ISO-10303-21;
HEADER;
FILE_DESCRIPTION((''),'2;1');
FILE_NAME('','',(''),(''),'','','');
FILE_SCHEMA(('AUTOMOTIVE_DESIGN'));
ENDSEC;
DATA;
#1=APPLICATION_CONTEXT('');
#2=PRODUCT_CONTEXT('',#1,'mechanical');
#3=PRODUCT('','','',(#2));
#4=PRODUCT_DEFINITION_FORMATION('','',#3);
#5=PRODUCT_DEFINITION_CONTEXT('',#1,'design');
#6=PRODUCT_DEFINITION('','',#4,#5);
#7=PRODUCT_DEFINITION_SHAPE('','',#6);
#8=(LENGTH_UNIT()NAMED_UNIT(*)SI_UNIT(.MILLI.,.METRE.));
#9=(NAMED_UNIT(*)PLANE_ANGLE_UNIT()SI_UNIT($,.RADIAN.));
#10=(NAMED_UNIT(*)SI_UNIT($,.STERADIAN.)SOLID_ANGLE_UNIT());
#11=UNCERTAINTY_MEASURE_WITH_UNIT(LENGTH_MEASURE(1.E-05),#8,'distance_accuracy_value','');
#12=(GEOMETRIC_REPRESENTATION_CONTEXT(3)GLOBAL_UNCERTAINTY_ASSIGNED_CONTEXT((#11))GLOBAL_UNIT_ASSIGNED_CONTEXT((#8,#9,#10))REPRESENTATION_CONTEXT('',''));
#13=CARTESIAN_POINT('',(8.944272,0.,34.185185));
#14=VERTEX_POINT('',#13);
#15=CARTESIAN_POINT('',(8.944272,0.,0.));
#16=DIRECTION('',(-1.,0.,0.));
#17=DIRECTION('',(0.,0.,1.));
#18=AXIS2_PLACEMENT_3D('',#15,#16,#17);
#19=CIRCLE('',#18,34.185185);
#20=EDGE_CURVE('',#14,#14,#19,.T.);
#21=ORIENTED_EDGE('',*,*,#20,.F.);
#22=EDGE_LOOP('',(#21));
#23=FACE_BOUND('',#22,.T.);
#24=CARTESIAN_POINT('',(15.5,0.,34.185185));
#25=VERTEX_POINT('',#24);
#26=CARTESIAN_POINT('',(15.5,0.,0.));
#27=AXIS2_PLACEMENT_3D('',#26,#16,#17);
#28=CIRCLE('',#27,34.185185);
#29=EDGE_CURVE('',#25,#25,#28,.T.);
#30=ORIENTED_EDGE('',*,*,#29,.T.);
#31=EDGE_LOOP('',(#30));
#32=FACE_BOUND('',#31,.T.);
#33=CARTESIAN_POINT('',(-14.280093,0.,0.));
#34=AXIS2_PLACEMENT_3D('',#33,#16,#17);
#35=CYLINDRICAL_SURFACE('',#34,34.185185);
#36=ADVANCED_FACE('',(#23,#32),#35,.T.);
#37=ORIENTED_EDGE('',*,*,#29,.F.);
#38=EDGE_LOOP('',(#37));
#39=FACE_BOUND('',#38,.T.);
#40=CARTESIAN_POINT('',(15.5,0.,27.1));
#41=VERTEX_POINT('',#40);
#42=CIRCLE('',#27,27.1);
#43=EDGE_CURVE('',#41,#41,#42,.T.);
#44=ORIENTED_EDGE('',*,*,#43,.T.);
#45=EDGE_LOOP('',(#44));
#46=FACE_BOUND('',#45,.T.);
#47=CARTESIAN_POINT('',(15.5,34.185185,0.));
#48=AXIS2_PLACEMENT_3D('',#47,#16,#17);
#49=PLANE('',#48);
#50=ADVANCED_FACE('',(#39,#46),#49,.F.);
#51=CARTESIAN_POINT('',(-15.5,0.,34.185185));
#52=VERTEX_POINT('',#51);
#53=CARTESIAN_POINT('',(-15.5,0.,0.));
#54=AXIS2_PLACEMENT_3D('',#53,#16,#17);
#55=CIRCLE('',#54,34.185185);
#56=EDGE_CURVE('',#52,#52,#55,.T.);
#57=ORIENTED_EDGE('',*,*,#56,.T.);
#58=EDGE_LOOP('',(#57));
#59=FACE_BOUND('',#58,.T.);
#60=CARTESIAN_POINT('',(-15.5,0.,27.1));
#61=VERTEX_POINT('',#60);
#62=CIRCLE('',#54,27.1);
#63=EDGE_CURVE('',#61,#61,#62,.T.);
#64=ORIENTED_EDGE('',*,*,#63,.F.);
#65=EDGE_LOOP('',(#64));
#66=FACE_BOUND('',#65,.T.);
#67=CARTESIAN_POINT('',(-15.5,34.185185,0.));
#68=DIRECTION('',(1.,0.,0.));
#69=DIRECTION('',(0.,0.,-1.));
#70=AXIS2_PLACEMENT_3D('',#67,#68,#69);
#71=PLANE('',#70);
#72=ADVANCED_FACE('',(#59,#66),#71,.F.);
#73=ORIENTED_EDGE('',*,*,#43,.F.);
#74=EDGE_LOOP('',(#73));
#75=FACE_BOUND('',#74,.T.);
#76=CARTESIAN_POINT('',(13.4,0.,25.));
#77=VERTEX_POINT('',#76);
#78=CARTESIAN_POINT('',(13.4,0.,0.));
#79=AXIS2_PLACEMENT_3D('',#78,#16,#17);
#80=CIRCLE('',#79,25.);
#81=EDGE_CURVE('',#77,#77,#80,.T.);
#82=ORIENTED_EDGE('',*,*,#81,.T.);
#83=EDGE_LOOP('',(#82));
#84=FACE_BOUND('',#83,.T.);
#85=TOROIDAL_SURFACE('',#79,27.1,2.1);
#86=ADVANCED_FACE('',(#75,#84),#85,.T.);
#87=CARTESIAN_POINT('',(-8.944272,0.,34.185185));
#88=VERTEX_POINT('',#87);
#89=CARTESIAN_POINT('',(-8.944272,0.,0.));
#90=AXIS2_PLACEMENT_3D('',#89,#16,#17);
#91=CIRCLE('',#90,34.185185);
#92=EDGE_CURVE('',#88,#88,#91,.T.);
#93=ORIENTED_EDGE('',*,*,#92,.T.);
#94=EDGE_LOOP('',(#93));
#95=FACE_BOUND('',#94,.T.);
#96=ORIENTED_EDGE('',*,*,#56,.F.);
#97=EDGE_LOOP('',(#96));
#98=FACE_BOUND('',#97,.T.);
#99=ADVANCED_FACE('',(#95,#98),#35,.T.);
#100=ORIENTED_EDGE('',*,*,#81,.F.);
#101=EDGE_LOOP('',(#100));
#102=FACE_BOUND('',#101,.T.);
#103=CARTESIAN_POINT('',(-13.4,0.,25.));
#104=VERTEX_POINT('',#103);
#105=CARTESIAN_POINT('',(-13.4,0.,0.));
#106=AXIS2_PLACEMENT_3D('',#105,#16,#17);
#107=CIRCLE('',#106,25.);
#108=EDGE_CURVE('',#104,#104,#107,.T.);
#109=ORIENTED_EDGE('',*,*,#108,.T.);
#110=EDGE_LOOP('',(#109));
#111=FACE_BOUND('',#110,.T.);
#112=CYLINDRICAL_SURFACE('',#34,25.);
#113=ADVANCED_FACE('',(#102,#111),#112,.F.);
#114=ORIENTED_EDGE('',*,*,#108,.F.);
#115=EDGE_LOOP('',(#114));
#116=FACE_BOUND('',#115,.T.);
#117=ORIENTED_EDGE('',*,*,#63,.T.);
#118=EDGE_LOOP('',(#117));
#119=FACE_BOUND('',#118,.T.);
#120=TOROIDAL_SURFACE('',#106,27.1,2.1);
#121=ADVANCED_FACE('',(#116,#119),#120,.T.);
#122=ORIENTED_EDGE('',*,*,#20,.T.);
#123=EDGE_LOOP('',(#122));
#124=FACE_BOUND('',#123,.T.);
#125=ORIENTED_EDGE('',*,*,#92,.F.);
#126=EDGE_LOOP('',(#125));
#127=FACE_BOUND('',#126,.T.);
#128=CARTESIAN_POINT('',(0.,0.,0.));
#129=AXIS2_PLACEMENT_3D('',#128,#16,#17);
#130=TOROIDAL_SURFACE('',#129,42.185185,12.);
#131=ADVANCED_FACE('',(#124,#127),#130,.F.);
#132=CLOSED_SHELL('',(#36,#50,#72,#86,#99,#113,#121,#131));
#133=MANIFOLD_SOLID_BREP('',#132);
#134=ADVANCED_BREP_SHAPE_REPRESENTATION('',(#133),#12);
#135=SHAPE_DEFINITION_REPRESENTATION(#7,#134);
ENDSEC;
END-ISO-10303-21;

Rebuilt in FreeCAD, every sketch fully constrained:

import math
import FreeCAD as App
import Part
import Sketcher
from FreeCAD import Vector

doc = App.newDocument("Part")
body = doc.addObject("PartDesign::Body", "Body")

# Sketch on XY plane
sketch1 = body.newObject("Sketcher::SketchObject", "Sketch")
sketch1.AttachmentSupport = (doc.getObject("XY_Plane"), [""])
sketch1.MapMode = "FlatFace"
sketch1.addGeometry(Part.LineSegment(Vector(15.5, 34.185185, 0), Vector(8.944272, 34.185185, 0)), False)
sketch1.addGeometry(Part.ArcOfCircle(Part.Circle(Vector(0, 42.185185, 0), Vector(0, 0, 1), 12), math.radians(-138.189685), math.radians(-41.810315)), False)
sketch1.addGeometry(Part.LineSegment(Vector(-8.944272, 34.185185, 0), Vector(-15.5, 34.185185, 0)), False)
sketch1.addGeometry(Part.LineSegment(Vector(-15.5, 34.185185, 0), Vector(-15.5, 27.1, 0)), False)
sketch1.addGeometry(Part.ArcOfCircle(Part.Circle(Vector(-13.4, 27.1, 0), Vector(0, 0, 1), 2.1), math.radians(-180), math.radians(-90)), False)
sketch1.addGeometry(Part.LineSegment(Vector(-13.4, 25, 0), Vector(13.4, 25, 0)), False)
sketch1.addGeometry(Part.ArcOfCircle(Part.Circle(Vector(13.4, 27.1, 0), Vector(0, 0, 1), 2.1), math.radians(-90), math.radians(0)), False)
sketch1.addGeometry(Part.LineSegment(Vector(15.5, 27.1, 0), Vector(15.5, 34.185185, 0)), False)
sketch1.addConstraint(Sketcher.Constraint("Coincident", 0, 2, 1, 2))
sketch1.addConstraint(Sketcher.Constraint("Coincident", 1, 1, 2, 1))
sketch1.addConstraint(Sketcher.Constraint("Coincident", 2, 2, 3, 1))
sketch1.addConstraint(Sketcher.Constraint("Tangent", 3, 2, 4, 1))
sketch1.addConstraint(Sketcher.Constraint("Tangent", 4, 2, 5, 1))
sketch1.addConstraint(Sketcher.Constraint("Tangent", 5, 2, 6, 1))
sketch1.addConstraint(Sketcher.Constraint("Tangent", 6, 2, 7, 1))
sketch1.addConstraint(Sketcher.Constraint("Coincident", 7, 2, 0, 1))
sketch1.addConstraint(Sketcher.Constraint("Horizontal", 0))
sketch1.addConstraint(Sketcher.Constraint("Horizontal", 2))
sketch1.addConstraint(Sketcher.Constraint("Vertical", 3))
sketch1.addConstraint(Sketcher.Constraint("Horizontal", 5))
sketch1.addConstraint(Sketcher.Constraint("Vertical", 7))
sketch1.addConstraint(Sketcher.Constraint("Equal", 4, 6))
sketch1.addConstraint(Sketcher.Constraint("Symmetric", 0, 2, 1, 1, -2))
sketch1.addConstraint(Sketcher.Constraint("Equal", 0, 2))
sketch1.addConstraint(Sketcher.Constraint("Radius", 1, 12.0))
sketch1.addConstraint(Sketcher.Constraint("Radius", 4, 2.1))
sketch1.addConstraint(Sketcher.Constraint("DistanceX", 5, 1, 5, 2, 26.8))
sketch1.addConstraint(Sketcher.Constraint("DistanceY", -1, 1, 4, 2, 25.0))
sketch1.addConstraint(Sketcher.Constraint("DistanceY", 0, 2, 1, 3, 8.0))
sketch1.addConstraint(Sketcher.Constraint("DistanceY", 3, 2, 3, 1, 7.085185))
revolution = body.newObject("PartDesign::Revolution", "Revolution")
revolution.Profile = sketch1
revolution.ReferenceAxis = (sketch1, ["H_Axis"])
revolution.Angle = 360

doc.recompute()
